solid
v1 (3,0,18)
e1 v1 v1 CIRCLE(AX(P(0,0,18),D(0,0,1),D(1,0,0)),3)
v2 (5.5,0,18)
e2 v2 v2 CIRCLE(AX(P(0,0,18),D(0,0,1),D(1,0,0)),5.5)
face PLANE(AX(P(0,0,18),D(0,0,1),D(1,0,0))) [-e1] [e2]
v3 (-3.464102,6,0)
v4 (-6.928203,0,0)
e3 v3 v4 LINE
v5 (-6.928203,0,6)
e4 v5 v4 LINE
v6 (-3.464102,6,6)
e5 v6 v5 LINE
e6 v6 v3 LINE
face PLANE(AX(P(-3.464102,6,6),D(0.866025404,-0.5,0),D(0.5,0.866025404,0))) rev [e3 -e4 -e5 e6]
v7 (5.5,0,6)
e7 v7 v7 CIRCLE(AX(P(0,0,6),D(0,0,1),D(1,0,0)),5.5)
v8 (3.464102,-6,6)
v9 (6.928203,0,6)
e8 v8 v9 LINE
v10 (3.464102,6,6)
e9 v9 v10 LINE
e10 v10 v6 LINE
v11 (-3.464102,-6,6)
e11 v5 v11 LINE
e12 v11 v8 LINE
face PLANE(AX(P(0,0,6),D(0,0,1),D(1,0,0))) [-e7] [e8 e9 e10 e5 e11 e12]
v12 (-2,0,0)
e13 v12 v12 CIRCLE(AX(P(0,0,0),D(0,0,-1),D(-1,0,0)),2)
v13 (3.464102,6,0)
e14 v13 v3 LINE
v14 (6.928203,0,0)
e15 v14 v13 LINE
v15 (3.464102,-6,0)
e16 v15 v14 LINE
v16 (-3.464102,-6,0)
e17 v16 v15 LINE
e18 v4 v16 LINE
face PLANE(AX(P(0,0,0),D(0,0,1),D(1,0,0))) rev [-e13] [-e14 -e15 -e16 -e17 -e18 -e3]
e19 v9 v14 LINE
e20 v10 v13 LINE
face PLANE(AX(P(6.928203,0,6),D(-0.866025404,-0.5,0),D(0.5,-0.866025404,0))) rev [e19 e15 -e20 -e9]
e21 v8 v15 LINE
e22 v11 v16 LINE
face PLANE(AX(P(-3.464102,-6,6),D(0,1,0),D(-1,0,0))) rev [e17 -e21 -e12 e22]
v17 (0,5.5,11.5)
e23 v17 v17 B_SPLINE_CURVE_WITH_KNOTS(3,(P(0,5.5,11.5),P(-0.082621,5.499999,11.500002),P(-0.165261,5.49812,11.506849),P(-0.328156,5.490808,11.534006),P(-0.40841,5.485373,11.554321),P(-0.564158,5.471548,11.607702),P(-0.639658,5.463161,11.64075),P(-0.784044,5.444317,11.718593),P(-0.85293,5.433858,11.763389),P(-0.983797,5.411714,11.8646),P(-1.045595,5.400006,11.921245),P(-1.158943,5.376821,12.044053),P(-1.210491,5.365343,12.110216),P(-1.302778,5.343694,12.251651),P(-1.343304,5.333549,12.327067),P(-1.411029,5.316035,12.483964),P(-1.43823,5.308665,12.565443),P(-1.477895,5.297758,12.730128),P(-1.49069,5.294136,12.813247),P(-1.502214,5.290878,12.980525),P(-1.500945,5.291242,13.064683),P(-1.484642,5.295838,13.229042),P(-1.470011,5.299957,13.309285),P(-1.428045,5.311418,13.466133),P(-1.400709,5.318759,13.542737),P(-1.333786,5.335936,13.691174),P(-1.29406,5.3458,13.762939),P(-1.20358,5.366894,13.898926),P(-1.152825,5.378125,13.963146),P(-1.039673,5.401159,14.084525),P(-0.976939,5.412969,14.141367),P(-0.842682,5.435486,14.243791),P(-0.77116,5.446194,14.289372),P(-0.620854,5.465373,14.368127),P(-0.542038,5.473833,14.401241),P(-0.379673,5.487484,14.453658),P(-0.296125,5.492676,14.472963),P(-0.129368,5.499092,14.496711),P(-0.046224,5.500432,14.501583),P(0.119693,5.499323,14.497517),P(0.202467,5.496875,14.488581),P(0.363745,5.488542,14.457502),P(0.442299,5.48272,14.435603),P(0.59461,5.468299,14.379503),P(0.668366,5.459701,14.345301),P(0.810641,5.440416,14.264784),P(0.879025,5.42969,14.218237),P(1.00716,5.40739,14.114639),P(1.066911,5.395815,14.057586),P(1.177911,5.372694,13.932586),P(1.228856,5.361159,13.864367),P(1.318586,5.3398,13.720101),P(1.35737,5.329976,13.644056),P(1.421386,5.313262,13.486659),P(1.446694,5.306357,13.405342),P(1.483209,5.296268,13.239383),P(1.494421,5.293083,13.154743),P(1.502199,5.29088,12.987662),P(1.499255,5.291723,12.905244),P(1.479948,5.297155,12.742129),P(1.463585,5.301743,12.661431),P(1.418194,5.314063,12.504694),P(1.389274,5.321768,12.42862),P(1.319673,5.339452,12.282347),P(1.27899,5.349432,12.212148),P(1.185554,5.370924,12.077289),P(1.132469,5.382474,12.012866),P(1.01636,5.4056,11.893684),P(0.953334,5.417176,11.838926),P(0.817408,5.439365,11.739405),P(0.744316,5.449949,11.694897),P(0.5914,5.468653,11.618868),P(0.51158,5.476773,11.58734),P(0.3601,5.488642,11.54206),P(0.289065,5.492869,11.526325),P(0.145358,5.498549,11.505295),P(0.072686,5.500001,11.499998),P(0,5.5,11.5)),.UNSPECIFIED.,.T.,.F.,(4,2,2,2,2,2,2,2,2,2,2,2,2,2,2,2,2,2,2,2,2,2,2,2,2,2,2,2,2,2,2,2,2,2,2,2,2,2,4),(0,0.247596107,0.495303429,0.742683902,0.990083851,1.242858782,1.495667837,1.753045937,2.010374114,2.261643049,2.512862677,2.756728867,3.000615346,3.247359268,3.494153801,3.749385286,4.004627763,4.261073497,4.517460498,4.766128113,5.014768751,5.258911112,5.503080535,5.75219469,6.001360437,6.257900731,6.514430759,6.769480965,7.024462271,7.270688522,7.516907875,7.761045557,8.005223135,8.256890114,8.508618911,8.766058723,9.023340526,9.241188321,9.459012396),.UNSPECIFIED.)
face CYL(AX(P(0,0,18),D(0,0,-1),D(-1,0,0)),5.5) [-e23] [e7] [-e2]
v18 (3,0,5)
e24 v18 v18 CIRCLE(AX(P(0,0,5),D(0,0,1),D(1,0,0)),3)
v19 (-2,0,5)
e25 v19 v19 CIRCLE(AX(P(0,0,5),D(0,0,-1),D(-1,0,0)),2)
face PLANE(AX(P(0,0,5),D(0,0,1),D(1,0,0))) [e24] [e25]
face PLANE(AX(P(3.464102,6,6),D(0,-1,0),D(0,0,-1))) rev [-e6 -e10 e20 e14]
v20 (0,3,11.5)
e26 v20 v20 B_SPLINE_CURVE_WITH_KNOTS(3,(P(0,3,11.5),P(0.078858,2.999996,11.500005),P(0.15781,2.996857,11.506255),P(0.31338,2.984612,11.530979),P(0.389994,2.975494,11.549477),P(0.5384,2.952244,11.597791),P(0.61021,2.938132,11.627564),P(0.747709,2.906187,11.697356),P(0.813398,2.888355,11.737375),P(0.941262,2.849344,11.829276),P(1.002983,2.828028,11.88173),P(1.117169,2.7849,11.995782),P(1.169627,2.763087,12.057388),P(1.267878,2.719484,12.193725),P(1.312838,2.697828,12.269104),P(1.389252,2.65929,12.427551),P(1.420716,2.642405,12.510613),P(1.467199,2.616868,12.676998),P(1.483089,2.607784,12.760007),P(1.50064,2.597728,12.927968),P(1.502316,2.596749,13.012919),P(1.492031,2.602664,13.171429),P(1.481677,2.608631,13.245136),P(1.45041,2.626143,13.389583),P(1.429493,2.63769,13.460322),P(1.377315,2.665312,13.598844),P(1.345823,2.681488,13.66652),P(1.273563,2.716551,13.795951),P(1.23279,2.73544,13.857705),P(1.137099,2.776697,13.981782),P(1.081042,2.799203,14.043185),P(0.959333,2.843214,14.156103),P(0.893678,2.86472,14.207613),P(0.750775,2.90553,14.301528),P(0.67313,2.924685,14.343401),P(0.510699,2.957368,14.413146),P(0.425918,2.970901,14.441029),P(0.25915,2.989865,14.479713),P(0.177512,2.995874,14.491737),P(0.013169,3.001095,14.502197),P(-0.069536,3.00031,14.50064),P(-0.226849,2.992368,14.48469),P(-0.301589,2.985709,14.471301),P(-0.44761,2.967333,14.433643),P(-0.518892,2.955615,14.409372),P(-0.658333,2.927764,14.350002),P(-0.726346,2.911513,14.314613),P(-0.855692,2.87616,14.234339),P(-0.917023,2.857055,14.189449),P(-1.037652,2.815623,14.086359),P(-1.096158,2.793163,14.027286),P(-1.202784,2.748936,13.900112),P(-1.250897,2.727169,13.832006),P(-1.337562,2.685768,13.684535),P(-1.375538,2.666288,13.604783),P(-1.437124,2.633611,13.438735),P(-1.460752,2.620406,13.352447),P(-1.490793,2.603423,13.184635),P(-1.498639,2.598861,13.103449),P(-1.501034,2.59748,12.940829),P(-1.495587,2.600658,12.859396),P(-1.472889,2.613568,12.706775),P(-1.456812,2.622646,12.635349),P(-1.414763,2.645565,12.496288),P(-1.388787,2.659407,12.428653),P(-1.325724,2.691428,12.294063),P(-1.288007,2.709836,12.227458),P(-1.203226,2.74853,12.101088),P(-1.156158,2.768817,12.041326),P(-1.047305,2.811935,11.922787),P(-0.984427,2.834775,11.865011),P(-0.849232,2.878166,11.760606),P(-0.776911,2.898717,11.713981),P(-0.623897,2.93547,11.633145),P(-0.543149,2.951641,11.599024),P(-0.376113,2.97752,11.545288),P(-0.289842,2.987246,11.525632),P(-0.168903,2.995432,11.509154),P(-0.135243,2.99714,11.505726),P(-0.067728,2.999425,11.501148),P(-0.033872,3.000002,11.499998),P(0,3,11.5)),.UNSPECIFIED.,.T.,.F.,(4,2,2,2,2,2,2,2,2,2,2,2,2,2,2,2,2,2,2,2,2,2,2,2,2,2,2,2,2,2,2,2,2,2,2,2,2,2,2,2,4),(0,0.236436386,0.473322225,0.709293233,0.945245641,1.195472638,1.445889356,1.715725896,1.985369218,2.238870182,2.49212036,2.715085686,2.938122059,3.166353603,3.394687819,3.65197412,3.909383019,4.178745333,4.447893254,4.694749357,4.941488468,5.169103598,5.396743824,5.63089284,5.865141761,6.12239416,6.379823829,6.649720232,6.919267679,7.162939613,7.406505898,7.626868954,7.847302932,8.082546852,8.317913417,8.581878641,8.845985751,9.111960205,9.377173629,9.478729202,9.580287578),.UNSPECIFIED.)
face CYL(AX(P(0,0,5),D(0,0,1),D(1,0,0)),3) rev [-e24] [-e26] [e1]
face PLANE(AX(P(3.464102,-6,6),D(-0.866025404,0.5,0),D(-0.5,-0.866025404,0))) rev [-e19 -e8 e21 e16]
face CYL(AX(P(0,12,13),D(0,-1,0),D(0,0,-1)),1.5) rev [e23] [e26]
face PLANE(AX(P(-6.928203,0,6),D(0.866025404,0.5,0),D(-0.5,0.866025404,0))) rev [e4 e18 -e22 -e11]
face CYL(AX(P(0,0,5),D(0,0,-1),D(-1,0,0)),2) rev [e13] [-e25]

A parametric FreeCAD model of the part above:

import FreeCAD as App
import Part
import Sketcher

V = App.Vector
Q = App.Units.Quantity


def add_polygon(sketch, points):
    """Adds a closed chain of lines whose ends are joined by coincident constraints."""
    first, n = sketch.GeometryCount, len(points)
    for a, b in zip(points, points[1:] + points[:1]):
        sketch.addGeometry(Part.LineSegment(App.Vector(*a, 0), App.Vector(*b, 0)), False)
    for i in range(n):
        sketch.addConstraint(Sketcher.Constraint("Coincident", first + i, 2, first + (i + 1) % n, 1))

doc = App.newDocument("Part")
body = doc.addObject("PartDesign::Body", "Body")

# Sketch on XY plane
sketch1 = doc.addObject("Sketcher::SketchObject", "Sketch")
body.addObject(sketch1)
sketch1.AttachmentSupport = (doc.XY_Plane, [""])
sketch1.MapMode = "FlatFace"
add_polygon(sketch1, [(7, 0), (3, 6), (-3, 6), (-7, 0), (-3, -6), (3, -6)])  # lines 0-5
sketch1.addConstraint([
    Sketcher.Constraint("Horizontal", 1),
    Sketcher.Constraint("Horizontal", 4),
    Sketcher.Constraint("Symmetric", 0, 2, 3, 2, -1, 1),
    Sketcher.Constraint("Symmetric", 2, 2, 5, 2, -1, 1),
    Sketcher.Constraint("PointOnObject", 2, 2, -1),
    Sketcher.Constraint("Parallel", 2, 5),
    Sketcher.Constraint("Vertical", 1, 2, 3, 2),
    Sketcher.Constraint("Angle", 0, Q("120 deg")),
    Sketcher.Constraint("DistanceY", -1, 1, 0, 2, Q("6 mm")),
    Sketcher.Constraint("DistanceX", -1, 1, 0, 2, Q("3.464102 mm")),
])
pad1 = doc.addObject("PartDesign::Pad", "Pad")
body.addObject(pad1)
pad1.Profile = sketch1
pad1.Length = 6

# Sketch on XY plane
sketch2 = doc.addObject("Sketcher::SketchObject", "Sketch001")
body.addObject(sketch2)
sketch2.AttachmentSupport = (doc.XY_Plane, [""])
sketch2.MapMode = "FlatFace"
sketch2.AttachmentOffset = App.Placement(V(0, 0, 6), App.Rotation())
sketch2.addGeometry(Part.Circle(V(0, 0, 0), V(0, 0, 1), 6), False)
sketch2.addConstraint([
    Sketcher.Constraint("Coincident", 0, 3, -1, 1),
    Sketcher.Constraint("Diameter", 0, Q("11 mm")),
])
pad2 = doc.addObject("PartDesign::Pad", "Pad001")
body.addObject(pad2)
pad2.Profile = sketch2
pad2.Length = 12

# Sketch on XY plane
sketch3 = doc.addObject("Sketcher::SketchObject", "Sketch002")
body.addObject(sketch3)
sketch3.AttachmentSupport = (doc.XY_Plane, [""])
sketch3.MapMode = "FlatFace"
sketch3.AttachmentOffset = App.Placement(V(0, 0, 18), App.Rotation())
sketch3.addGeometry(Part.Circle(V(0, 0, 0), V(0, 0, 1), 3), False)
sketch3.addConstraint([
    Sketcher.Constraint("Coincident", 0, 3, -1, 1),
    Sketcher.Constraint("Diameter", 0, Q("6 mm")),
])
pocket1 = doc.addObject("PartDesign::Pocket", "Pocket")
body.addObject(pocket1)
pocket1.Profile = sketch3
pocket1.Length = 13

# Sketch on XY plane
sketch4 = doc.addObject("Sketcher::SketchObject", "Sketch003")
body.addObject(sketch4)
sketch4.AttachmentSupport = (doc.XY_Plane, [""])
sketch4.MapMode = "FlatFace"
sketch4.addGeometry(Part.Circle(V(0, 0, 0), V(0, 0, 1), 2), False)
sketch4.addConstraint([
    Sketcher.Constraint("Coincident", 0, 3, -1, 1),
    Sketcher.Constraint("Diameter", 0, Q("4 mm")),
])
pocket2 = doc.addObject("PartDesign::Pocket", "Pocket001")
body.addObject(pocket2)
pocket2.Profile = sketch4
pocket2.Length = 5
pocket2.Reversed = True

# Sketch on XZ plane
sketch5 = doc.addObject("Sketcher::SketchObject", "Sketch004")
body.addObject(sketch5)
sketch5.AttachmentSupport = (doc.XZ_Plane, [""])
sketch5.MapMode = "FlatFace"
sketch5.addGeometry(Part.Circle(V(0, 13, 0), V(0, 0, 1), 1.5), False)
sketch5.addConstraint([
    Sketcher.Constraint("PointOnObject", 0, 3, -2),
    Sketcher.Constraint("Diameter", 0, Q("3 mm")),
    Sketcher.Constraint("DistanceY", -1, 1, 0, 3, Q("13 mm")),
])
pocket3 = doc.addObject("PartDesign::Pocket", "Pocket002")
body.addObject(pocket3)
pocket3.Profile = sketch5
pocket3.Length = 12

doc.recompute()
